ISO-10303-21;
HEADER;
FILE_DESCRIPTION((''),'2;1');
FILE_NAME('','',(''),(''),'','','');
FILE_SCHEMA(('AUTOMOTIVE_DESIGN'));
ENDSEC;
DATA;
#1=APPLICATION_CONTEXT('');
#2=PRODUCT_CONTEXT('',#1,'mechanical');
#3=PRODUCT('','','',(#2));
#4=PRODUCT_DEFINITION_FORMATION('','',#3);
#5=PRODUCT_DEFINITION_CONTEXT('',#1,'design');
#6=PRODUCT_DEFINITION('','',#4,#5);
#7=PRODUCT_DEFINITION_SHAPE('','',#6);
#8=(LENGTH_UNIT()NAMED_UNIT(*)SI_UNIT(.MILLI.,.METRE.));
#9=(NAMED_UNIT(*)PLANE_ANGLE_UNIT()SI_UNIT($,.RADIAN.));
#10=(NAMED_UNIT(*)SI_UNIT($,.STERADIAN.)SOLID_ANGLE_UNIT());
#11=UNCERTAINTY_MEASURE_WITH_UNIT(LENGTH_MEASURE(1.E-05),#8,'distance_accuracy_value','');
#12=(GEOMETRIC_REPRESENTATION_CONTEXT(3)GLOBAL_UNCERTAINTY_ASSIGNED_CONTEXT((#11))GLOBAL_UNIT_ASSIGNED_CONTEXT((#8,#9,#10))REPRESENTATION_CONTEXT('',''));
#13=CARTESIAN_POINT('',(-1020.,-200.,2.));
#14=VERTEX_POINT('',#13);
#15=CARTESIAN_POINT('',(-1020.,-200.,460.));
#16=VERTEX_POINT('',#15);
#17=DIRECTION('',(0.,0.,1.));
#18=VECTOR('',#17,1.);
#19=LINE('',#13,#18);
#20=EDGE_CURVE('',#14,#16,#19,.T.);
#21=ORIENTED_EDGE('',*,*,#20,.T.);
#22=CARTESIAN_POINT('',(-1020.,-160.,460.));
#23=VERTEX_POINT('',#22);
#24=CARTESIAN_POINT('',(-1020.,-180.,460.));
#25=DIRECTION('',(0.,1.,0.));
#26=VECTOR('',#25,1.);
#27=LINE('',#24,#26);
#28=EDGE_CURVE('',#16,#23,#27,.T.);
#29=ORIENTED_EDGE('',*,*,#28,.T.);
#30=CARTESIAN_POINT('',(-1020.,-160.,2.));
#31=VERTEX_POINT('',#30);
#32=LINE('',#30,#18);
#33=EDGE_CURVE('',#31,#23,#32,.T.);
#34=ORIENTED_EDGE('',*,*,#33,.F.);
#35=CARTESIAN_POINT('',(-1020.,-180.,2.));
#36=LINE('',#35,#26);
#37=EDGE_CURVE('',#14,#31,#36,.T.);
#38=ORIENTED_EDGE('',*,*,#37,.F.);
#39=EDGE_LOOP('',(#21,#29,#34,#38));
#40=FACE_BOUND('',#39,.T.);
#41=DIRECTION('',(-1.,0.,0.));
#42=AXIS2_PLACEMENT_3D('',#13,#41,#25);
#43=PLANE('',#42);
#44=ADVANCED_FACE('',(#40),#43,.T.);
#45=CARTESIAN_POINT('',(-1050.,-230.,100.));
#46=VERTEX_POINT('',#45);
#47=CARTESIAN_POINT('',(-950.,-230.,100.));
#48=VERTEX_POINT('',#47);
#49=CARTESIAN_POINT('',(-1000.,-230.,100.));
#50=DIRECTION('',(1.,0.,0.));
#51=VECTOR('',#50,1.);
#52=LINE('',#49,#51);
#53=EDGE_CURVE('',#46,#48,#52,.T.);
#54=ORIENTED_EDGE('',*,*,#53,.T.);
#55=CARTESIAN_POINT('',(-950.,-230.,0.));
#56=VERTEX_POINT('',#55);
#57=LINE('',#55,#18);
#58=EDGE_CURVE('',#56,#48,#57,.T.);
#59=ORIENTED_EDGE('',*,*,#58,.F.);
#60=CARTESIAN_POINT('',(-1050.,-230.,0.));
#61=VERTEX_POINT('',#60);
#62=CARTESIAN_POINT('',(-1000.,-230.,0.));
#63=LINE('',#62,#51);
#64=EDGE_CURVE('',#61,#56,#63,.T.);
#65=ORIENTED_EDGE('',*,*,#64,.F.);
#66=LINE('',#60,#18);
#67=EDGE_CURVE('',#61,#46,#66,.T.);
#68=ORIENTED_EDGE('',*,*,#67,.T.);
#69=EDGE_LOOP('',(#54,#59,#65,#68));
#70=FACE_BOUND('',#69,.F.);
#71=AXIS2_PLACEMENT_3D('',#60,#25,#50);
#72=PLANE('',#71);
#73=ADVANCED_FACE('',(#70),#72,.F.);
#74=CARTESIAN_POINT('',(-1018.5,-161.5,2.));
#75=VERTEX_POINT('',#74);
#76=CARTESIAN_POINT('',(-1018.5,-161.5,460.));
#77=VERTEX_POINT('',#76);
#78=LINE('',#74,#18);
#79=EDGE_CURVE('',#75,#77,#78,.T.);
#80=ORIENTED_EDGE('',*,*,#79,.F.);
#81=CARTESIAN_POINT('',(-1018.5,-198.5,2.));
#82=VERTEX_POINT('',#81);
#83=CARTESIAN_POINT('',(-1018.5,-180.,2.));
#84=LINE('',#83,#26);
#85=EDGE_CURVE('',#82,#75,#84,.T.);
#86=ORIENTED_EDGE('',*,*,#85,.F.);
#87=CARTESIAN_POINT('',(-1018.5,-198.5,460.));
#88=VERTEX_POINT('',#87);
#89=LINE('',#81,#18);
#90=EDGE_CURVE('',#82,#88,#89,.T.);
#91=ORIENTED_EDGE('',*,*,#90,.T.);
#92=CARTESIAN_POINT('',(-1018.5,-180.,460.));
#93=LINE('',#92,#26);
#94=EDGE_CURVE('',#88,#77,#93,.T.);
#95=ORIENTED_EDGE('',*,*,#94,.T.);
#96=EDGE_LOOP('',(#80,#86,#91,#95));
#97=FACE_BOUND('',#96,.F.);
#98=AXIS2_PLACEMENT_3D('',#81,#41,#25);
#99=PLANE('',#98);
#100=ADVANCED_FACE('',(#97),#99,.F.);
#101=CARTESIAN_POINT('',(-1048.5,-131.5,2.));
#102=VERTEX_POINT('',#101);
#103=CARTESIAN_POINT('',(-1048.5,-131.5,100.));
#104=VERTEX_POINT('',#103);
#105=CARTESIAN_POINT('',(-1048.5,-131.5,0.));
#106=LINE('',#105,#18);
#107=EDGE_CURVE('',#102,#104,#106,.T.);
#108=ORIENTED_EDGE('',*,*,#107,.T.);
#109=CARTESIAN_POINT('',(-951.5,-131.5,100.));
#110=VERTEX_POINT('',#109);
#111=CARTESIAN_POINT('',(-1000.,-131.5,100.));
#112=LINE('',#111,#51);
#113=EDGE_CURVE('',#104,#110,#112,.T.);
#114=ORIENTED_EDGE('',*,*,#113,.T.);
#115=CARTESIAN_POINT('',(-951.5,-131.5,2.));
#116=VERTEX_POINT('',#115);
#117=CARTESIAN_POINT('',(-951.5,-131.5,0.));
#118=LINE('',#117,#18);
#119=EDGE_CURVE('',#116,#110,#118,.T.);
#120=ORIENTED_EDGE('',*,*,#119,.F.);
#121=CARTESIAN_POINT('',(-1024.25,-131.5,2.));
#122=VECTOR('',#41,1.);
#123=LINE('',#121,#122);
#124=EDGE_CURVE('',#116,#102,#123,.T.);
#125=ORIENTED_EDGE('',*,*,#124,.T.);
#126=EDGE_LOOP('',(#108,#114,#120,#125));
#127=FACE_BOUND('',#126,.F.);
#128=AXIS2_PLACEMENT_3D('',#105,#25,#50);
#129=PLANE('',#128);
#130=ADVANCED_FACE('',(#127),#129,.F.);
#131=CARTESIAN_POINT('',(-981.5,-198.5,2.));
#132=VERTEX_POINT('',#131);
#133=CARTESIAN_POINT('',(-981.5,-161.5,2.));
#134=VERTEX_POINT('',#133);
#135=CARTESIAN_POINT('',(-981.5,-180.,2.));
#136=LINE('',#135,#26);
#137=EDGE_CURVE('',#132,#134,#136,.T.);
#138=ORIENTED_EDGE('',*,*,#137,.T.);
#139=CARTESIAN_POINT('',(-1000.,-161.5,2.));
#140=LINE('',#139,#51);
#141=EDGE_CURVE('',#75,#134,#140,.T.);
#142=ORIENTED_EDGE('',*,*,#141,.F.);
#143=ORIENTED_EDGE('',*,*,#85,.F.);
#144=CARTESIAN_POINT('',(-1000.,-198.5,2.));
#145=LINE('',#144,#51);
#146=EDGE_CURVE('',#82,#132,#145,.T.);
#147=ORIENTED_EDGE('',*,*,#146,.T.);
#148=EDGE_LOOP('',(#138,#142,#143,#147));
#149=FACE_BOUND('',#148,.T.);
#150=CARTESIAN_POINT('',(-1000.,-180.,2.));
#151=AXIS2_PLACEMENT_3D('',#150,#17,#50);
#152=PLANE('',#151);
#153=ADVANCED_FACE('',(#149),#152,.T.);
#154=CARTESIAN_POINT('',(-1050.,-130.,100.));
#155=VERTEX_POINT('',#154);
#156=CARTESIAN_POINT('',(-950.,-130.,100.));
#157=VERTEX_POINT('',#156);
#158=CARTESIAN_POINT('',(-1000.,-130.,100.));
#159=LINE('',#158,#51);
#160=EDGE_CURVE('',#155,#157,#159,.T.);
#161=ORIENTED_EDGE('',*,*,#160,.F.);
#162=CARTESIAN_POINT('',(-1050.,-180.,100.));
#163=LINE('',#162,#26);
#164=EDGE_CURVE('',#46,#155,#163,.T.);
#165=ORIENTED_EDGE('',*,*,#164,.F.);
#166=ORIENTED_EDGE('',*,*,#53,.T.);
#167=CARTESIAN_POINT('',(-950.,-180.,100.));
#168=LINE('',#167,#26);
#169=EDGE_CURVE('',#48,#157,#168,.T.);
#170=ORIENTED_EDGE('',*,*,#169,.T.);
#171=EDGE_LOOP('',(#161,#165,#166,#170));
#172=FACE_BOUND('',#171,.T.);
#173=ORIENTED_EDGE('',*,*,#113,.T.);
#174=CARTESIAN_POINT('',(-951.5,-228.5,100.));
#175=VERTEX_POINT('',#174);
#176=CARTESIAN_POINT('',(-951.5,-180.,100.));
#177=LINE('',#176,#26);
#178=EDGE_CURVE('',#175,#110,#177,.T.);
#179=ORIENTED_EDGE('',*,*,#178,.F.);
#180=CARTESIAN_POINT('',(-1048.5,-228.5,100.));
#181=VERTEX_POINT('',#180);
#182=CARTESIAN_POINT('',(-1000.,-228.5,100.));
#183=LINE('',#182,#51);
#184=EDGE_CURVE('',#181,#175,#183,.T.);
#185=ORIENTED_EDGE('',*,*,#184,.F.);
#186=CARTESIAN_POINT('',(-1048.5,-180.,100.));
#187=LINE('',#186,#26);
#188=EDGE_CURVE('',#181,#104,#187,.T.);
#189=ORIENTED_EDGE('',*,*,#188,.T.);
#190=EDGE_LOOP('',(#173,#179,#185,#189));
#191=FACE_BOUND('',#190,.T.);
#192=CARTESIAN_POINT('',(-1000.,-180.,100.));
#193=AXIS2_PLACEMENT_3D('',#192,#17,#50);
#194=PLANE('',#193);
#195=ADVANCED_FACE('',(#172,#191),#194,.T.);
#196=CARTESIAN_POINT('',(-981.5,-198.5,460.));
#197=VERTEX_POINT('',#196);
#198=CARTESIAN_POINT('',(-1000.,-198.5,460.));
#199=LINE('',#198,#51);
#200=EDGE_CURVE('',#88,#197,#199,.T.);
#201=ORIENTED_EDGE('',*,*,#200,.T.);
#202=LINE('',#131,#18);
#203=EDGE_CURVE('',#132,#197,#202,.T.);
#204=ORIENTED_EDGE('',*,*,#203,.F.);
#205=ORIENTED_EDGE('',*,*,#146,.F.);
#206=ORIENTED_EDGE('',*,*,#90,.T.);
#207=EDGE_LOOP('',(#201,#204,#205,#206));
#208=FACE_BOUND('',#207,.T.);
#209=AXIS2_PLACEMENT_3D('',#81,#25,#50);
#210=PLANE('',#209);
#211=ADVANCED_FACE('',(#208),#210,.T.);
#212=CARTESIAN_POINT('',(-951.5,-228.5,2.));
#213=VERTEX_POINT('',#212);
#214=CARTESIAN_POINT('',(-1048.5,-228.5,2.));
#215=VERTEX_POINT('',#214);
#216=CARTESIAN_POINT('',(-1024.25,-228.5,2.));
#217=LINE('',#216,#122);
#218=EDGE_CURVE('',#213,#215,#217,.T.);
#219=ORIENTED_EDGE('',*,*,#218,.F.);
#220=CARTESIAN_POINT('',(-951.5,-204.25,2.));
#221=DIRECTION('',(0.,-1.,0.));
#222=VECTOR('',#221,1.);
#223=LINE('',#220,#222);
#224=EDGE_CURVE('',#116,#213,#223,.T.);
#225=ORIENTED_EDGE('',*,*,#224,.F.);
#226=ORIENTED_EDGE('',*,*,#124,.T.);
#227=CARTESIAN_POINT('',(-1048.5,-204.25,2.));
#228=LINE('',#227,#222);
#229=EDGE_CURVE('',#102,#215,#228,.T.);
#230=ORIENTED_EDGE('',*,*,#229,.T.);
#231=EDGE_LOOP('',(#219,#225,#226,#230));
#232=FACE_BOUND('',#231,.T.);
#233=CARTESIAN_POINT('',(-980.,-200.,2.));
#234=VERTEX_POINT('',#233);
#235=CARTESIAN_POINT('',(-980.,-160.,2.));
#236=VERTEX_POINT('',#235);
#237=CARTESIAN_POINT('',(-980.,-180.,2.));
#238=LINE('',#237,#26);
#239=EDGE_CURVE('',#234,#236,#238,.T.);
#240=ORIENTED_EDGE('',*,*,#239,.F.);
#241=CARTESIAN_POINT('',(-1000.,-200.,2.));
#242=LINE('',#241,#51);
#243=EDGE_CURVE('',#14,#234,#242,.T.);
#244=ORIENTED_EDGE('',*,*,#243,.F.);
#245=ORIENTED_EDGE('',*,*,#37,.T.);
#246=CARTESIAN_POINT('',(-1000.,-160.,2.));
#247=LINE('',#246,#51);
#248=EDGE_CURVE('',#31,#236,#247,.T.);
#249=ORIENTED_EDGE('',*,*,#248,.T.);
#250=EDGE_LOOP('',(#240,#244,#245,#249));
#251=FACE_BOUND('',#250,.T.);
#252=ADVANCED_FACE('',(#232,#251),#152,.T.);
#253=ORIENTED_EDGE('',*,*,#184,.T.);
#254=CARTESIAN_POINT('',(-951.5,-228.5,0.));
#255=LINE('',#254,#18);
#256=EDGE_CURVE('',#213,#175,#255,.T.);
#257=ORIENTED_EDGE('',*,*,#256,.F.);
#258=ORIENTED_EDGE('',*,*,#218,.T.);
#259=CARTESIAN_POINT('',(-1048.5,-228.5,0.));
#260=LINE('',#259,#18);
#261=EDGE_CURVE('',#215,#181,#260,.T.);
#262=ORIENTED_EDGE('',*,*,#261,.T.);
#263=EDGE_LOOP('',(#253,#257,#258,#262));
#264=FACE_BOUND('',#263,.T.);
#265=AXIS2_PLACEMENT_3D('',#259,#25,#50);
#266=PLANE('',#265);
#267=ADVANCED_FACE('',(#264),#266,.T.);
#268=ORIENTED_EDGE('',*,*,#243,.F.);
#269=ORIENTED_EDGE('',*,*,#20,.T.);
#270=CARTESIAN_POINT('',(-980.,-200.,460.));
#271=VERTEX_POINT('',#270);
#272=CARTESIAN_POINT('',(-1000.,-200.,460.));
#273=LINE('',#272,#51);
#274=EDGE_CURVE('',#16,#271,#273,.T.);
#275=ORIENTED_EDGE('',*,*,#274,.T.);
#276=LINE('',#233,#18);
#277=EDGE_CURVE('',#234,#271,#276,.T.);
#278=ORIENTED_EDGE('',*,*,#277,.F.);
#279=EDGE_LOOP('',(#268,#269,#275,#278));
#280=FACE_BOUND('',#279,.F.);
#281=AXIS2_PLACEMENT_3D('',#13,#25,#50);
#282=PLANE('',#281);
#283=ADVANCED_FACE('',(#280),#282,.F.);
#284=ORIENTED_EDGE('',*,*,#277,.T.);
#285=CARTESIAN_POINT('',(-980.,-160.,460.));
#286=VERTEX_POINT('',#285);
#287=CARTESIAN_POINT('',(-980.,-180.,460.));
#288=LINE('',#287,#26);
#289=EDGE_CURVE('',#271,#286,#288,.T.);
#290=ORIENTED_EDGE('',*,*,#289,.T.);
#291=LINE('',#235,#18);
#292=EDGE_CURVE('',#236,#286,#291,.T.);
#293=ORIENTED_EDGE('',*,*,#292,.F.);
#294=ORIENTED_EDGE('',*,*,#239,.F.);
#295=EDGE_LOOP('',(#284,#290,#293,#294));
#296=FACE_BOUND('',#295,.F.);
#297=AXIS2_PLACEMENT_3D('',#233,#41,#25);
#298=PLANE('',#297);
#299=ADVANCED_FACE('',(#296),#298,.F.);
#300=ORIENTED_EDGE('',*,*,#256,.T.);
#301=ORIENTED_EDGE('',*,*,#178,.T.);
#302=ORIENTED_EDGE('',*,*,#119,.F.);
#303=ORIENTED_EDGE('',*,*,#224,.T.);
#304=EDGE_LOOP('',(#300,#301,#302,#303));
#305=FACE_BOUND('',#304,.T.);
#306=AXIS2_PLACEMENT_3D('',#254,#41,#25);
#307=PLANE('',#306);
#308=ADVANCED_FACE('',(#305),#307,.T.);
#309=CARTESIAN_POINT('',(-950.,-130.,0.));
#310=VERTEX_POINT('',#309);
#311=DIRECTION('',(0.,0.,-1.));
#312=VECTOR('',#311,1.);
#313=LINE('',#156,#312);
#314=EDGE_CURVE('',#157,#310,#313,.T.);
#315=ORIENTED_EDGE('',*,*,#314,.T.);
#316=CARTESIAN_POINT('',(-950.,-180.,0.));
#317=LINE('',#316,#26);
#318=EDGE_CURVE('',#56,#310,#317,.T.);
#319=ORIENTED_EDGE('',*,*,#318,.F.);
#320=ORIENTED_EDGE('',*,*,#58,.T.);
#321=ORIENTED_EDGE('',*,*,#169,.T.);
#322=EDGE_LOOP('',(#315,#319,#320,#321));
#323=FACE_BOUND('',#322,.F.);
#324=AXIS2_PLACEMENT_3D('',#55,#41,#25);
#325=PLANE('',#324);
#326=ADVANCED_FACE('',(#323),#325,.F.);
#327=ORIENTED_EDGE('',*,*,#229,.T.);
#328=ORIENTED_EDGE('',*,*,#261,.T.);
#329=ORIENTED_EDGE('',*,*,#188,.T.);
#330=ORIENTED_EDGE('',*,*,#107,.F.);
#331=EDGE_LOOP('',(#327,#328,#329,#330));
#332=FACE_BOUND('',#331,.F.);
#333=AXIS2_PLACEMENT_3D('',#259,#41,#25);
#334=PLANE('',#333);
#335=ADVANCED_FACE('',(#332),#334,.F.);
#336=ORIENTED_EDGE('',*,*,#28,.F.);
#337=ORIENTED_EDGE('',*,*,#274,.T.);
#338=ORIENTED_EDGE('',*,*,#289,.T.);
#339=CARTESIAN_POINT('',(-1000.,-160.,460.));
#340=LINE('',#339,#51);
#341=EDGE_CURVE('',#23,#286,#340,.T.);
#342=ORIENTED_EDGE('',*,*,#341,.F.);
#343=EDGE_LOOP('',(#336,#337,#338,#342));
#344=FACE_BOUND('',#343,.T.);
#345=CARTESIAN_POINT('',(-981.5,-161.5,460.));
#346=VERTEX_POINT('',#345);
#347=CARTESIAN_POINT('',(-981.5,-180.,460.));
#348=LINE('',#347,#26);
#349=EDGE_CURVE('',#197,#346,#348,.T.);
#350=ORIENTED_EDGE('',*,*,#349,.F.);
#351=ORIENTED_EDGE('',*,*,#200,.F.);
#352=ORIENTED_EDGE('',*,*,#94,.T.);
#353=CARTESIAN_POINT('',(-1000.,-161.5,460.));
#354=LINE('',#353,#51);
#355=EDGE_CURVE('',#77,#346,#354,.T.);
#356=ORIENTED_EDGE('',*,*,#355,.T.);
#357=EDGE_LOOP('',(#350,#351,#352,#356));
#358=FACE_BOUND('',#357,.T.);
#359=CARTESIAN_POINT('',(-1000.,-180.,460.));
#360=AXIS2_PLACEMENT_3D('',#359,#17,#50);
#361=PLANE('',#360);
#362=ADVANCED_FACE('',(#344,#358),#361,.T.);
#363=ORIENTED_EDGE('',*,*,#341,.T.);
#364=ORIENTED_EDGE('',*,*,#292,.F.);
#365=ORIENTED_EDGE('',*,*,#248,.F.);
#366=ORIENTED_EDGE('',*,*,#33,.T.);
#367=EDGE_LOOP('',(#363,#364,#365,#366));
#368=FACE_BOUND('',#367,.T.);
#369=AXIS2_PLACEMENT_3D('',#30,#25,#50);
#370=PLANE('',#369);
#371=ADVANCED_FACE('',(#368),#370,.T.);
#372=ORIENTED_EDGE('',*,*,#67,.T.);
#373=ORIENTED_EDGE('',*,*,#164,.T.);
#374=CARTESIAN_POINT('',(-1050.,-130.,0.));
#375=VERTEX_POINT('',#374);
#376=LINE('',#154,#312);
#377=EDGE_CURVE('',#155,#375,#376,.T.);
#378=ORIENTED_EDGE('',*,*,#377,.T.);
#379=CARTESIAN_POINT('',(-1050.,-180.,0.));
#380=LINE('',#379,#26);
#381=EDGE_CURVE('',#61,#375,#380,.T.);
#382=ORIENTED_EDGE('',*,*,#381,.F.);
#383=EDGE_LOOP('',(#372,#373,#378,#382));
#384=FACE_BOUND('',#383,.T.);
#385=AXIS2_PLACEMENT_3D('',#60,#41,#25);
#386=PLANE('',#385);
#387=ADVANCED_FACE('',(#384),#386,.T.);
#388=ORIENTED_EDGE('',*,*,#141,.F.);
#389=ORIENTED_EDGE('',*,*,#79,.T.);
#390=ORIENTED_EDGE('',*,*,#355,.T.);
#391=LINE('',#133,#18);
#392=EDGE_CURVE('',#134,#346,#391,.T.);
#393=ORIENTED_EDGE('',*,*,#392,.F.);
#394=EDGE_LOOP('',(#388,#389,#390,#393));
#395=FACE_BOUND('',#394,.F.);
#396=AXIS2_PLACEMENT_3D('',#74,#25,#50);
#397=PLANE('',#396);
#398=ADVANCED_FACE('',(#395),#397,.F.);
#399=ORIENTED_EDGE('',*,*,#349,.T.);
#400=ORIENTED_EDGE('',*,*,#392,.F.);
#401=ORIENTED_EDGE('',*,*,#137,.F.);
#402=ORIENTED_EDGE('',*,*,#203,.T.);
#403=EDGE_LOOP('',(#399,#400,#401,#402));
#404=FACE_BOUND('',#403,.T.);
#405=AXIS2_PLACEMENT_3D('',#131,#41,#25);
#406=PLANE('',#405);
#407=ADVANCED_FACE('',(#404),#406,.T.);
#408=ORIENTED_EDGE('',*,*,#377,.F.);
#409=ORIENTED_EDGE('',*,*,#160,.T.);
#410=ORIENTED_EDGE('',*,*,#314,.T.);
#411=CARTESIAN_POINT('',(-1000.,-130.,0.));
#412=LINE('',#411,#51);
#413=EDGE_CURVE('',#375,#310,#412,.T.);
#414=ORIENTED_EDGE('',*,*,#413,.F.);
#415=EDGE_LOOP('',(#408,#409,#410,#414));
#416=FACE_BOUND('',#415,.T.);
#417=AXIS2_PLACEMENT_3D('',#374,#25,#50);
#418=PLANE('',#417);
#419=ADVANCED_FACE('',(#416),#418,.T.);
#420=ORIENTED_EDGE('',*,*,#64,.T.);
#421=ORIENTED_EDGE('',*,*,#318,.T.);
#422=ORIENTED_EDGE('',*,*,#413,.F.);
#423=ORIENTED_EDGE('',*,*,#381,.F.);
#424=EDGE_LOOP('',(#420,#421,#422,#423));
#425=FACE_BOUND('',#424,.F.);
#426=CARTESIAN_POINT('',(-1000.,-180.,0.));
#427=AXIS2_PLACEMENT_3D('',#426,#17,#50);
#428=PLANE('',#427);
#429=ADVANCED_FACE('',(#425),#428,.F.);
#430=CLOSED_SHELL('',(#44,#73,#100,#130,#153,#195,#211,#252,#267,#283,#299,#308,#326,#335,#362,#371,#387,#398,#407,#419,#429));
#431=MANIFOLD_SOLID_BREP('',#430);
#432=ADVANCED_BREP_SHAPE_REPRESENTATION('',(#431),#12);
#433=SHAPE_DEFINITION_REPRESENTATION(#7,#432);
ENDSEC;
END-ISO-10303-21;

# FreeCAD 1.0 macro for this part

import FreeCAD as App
import Part
import Sketcher

V = App.Vector
Q = App.Units.Quantity


def add_polygon(sketch, points):
    """Adds a closed chain of lines whose ends are joined by coincident constraints."""
    first, n = sketch.GeometryCount, len(points)
    for a, b in zip(points, points[1:] + points[:1]):
        sketch.addGeometry(Part.LineSegment(App.Vector(*a, 0), App.Vector(*b, 0)), False)
    for i in range(n):
        sketch.addConstraint(Sketcher.Constraint("Coincident", first + i, 2, first + (i + 1) % n, 1))

doc = App.newDocument("Part")
body = doc.addObject("PartDesign::Body", "Body")

# Sketch on XY plane
sketch1 = body.newObject("Sketcher::SketchObject", "Sketch")
sketch1.AttachmentSupport = (doc.getObject("XY_Plane"), [""])
sketch1.MapMode = "FlatFace"
add_polygon(sketch1, [(-1050, -130), (-1050, -230), (-950, -230), (-950, -130)])  # lines 0-3
sketch1.addConstraint([
    Sketcher.Constraint("Vertical", 0),
    Sketcher.Constraint("Horizontal", 1),
    Sketcher.Constraint("Vertical", 2),
    Sketcher.Constraint("Horizontal", 3),
    Sketcher.Constraint("Equal", 3, 0),
    Sketcher.Constraint("DistanceX", 1, 1, 1, 2, Q("100 mm")),
    Sketcher.Constraint("DistanceX", 0, 2, -1, 1, Q("1050 mm")),
    Sketcher.Constraint("DistanceY", 0, 2, -1, 1, Q("230 mm")),
])
pad1 = body.newObject("PartDesign::Pad", "Pad")
pad1.Profile = sketch1
pad1.Length = 2

# Sketch on XY plane
sketch2 = body.newObject("Sketcher::SketchObject", "Sketch001")
sketch2.AttachmentSupport = (doc.getObject("XY_Plane"), [""])
sketch2.MapMode = "FlatFace"
sketch2.AttachmentOffset = App.Placement(V(0, 0, 2), App.Rotation())
add_polygon(sketch2, [(-1020, -160), (-1020, -200), (-980, -200), (-980, -160)])  # lines 0-3
add_polygon(sketch2, [(-981.5, -198.5), (-1018.5, -198.5), (-1018.5, -161.5), (-981.5, -161.5)])  # lines 4-7
sketch2.addConstraint([
    Sketcher.Constraint("Vertical", 0),
    Sketcher.Constraint("Horizontal", 1),
    Sketcher.Constraint("Vertical", 2),
    Sketcher.Constraint("Horizontal", 3),
    Sketcher.Constraint("Horizontal", 4),
    Sketcher.Constraint("Vertical", 5),
    Sketcher.Constraint("Horizontal", 6),
    Sketcher.Constraint("Vertical", 7),
    Sketcher.Constraint("Equal", 3, 0),
    Sketcher.Constraint("Equal", 6, 5),
    Sketcher.Constraint("DistanceX", 1, 1, 1, 2, Q("40 mm")),
    Sketcher.Constraint("DistanceX", 4, 2, 4, 1, Q("37 mm")),
    Sketcher.Constraint("DistanceX", 0, 2, -1, 1, Q("1020 mm")),
    Sketcher.Constraint("DistanceY", 0, 2, -1, 1, Q("200 mm")),
    Sketcher.Constraint("DistanceX", 4, 2, -1, 1, Q("1018.5 mm")),
    Sketcher.Constraint("DistanceY", 4, 2, -1, 1, Q("198.5 mm")),
])
pad2 = body.newObject("PartDesign::Pad", "Pad001")
pad2.Profile = sketch2
pad2.Length = 458

# Sketch on XY plane
sketch3 = body.newObject("Sketcher::SketchObject", "Sketch002")
sketch3.AttachmentSupport = (doc.getObject("XY_Plane"), [""])
sketch3.MapMode = "FlatFace"
add_polygon(sketch3, [(-1050, -130), (-1050, -230), (-950, -230), (-950, -130)])  # lines 0-3
add_polygon(sketch3, [(-951.5, -228.5), (-1048.5, -228.5), (-1048.5, -131.5), (-951.5, -131.5)])  # lines 4-7
sketch3.addConstraint([
    Sketcher.Constraint("Vertical", 0),
    Sketcher.Constraint("Horizontal", 1),
    Sketcher.Constraint("Vertical", 2),
    Sketcher.Constraint("Horizontal", 3),
    Sketcher.Constraint("Horizontal", 4),
    Sketcher.Constraint("Vertical", 5),
    Sketcher.Constraint("Horizontal", 6),
    Sketcher.Constraint("Vertical", 7),
    Sketcher.Constraint("Equal", 3, 0),
    Sketcher.Constraint("Equal", 6, 5),
    Sketcher.Constraint("DistanceX", 1, 1, 1, 2, Q("100 mm")),
    Sketcher.Constraint("DistanceX", 4, 2, 4, 1, Q("97 mm")),
    Sketcher.Constraint("DistanceX", 0, 2, -1, 1, Q("1050 mm")),
    Sketcher.Constraint("DistanceY", 0, 2, -1, 1, Q("230 mm")),
    Sketcher.Constraint("DistanceX", 4, 2, -1, 1, Q("1048.5 mm")),
    Sketcher.Constraint("DistanceY", 4, 2, -1, 1, Q("228.5 mm")),
])
pad3 = body.newObject("PartDesign::Pad", "Pad002")
pad3.Profile = sketch3
pad3.Length = 100

doc.recompute()
